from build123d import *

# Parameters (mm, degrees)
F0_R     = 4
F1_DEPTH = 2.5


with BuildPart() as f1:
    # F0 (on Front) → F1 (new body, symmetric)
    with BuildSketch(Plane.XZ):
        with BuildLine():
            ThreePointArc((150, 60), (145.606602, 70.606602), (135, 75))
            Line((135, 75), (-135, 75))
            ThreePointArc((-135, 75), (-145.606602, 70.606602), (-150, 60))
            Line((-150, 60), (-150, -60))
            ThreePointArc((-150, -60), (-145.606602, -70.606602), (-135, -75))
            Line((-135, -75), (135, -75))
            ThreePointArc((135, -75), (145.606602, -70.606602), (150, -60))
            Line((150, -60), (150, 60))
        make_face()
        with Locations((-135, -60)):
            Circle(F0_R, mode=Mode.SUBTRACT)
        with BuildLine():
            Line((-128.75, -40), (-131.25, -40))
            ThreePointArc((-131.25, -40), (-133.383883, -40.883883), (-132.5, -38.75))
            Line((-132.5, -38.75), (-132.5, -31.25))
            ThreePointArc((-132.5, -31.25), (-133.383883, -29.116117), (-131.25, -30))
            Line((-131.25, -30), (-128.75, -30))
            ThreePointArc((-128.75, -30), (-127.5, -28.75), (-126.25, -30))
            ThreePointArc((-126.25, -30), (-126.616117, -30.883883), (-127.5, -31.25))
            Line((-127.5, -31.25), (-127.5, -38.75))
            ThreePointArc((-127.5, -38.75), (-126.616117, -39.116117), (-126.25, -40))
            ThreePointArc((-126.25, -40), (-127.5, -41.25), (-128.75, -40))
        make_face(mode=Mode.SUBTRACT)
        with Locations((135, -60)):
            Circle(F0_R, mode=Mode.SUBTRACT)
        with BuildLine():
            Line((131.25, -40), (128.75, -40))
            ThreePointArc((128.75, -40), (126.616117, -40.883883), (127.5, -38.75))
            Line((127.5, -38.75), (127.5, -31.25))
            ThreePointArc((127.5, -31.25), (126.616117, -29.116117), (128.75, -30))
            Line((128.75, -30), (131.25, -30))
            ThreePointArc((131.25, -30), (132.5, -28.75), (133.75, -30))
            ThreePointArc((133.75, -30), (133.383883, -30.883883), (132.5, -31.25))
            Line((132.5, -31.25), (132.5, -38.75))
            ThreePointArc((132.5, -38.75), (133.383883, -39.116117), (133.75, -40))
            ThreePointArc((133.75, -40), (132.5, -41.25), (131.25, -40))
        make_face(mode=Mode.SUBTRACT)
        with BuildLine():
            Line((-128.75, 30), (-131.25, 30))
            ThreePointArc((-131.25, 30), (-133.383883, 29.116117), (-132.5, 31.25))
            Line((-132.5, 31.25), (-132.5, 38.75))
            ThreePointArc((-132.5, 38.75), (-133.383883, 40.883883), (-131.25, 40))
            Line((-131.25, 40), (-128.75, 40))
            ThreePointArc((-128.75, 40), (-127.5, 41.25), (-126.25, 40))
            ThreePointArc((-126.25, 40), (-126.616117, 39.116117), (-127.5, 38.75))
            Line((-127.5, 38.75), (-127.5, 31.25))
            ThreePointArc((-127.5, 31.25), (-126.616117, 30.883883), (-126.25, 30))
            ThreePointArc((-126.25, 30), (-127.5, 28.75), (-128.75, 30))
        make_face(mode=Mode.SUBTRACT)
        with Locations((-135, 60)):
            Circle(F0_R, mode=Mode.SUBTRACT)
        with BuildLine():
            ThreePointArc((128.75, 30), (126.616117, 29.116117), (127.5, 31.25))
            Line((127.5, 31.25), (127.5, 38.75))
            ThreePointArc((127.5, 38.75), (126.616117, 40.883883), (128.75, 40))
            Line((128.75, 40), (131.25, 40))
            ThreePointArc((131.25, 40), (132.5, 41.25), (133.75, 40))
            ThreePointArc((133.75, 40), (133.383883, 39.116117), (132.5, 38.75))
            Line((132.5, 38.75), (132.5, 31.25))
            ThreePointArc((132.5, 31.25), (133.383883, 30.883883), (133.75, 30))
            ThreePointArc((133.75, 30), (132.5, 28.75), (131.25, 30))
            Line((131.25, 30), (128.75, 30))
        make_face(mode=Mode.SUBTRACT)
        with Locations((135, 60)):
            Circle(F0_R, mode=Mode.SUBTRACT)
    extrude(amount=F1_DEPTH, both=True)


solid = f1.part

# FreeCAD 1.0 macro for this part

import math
import FreeCAD as App
import Part
import Sketcher

V = App.Vector

doc = App.newDocument("Part")
body = doc.addObject("PartDesign::Body", "Body")

sketch1 = body.newObject("Sketcher::SketchObject", "Sketch")
sketch1.AttachmentSupport = (doc.getObject("XZ_Plane"), [""])
sketch1.MapMode = "FlatFace"
sketch1.addGeometry([
    Part.ArcOfCircle(Part.Circle(V(135, 60, 0), V(0, 0, 1), 15), math.radians(0), math.radians(90)),
    Part.LineSegment(V(135, 75, 0), V(-135, 75, 0)),
    Part.ArcOfCircle(Part.Circle(V(-135, 60, 0), V(0, 0, 1), 15), math.radians(90), math.radians(180)),
    Part.LineSegment(V(-150, 60, 0), V(-150, -60, 0)),
    Part.ArcOfCircle(Part.Circle(V(-135, -60, 0), V(0, 0, 1), 15), math.radians(180), math.radians(270)),
    Part.LineSegment(V(-135, -75, 0), V(135, -75, 0)),
    Part.ArcOfCircle(Part.Circle(V(135, -60, 0), V(0, 0, 1), 15), math.radians(-90), math.radians(0)),
    Part.LineSegment(V(150, -60, 0), V(150, 60, 0)),
    Part.Circle(V(-135, -60, 0), V(0, 0, 1), 4),
    Part.ArcOfCircle(Part.Circle(V(-127.5, -40, 0), V(0, 0, 1), 1.2), math.radians(180), math.radians(360)),
    Part.LineSegment(V(-128.8, -40, 0), V(-131.2, -40, 0)),
    Part.ArcOfCircle(Part.Circle(V(-132.5, -40, 0), V(0, 0, 1), 1.2), math.radians(90), math.radians(360)),
    Part.LineSegment(V(-132.5, -38.8, 0), V(-132.5, -31.2, 0)),
    Part.ArcOfCircle(Part.Circle(V(-132.5, -30, 0), V(0, 0, 1), 1.2), math.radians(0), math.radians(270)),
    Part.LineSegment(V(-131.2, -30, 0), V(-128.8, -30, 0)),
    Part.ArcOfCircle(Part.Circle(V(-127.5, -30, 0), V(0, 0, 1), 1.2), math.radians(0), math.radians(180)),
    Part.ArcOfCircle(Part.Circle(V(-127.5, -30, 0), V(0, 0, 1), 1.3), math.radians(-90), math.radians(0)),
    Part.LineSegment(V(-127.5, -31.2, 0), V(-127.5, -38.8, 0)),
    Part.ArcOfCircle(Part.Circle(V(-127.5, -40, 0), V(0, 0, 1), 1.3), math.radians(0), math.radians(90)),
    Part.Circle(V(135, -60, 0), V(0, 0, 1), 4),
    Part.ArcOfCircle(Part.Circle(V(132.5, -40, 0), V(0, 0, 1), 1.2), math.radians(180), math.radians(360)),
    Part.LineSegment(V(131.2, -40, 0), V(128.8, -40, 0)),
    Part.ArcOfCircle(Part.Circle(V(127.5, -40, 0), V(0, 0, 1), 1.2), math.radians(90), math.radians(360)),
    Part.LineSegment(V(127.5, -38.8, 0), V(127.5, -31.2, 0)),
    Part.ArcOfCircle(Part.Circle(V(127.5, -30, 0), V(0, 0, 1), 1.2), math.radians(0), math.radians(270)),
    Part.LineSegment(V(128.8, -30, 0), V(131.2, -30, 0)),
    Part.ArcOfCircle(Part.Circle(V(132.5, -30, 0), V(0, 0, 1), 1.2), math.radians(0), math.radians(180)),
    Part.ArcOfCircle(Part.Circle(V(132.5, -30, 0), V(0, 0, 1), 1.3), math.radians(-90), math.radians(0)),
    Part.LineSegment(V(132.5, -31.2, 0), V(132.5, -38.8, 0)),
    Part.ArcOfCircle(Part.Circle(V(132.5, -40, 0), V(0, 0, 1), 1.3), math.radians(0), math.radians(90)),
    Part.ArcOfCircle(Part.Circle(V(-127.5, 30, 0), V(0, 0, 1), 1.2), math.radians(180), math.radians(360)),
    Part.LineSegment(V(-128.8, 30, 0), V(-131.2, 30, 0)),
    Part.ArcOfCircle(Part.Circle(V(-132.5, 30, 0), V(0, 0, 1), 1.2), math.radians(90), math.radians(360)),
    Part.LineSegment(V(-132.5, 31.2, 0), V(-132.5, 38.8, 0)),
    Part.ArcOfCircle(Part.Circle(V(-132.5, 40, 0), V(0, 0, 1), 1.2), math.radians(0), math.radians(270)),
    Part.LineSegment(V(-131.2, 40, 0), V(-128.8, 40, 0)),
    Part.ArcOfCircle(Part.Circle(V(-127.5, 40, 0), V(0, 0, 1), 1.2), math.radians(0), math.radians(180)),
    Part.ArcOfCircle(Part.Circle(V(-127.5, 40, 0), V(0, 0, 1), 1.3), math.radians(-90), math.radians(0)),
    Part.LineSegment(V(-127.5, 38.8, 0), V(-127.5, 31.2, 0)),
    Part.ArcOfCircle(Part.Circle(V(-127.5, 30, 0), V(0, 0, 1), 1.3), math.radians(0), math.radians(90)),
    Part.Circle(V(-135, 60, 0), V(0, 0, 1), 4),
    Part.LineSegment(V(131.2, 30, 0), V(128.8, 30, 0)),
    Part.ArcOfCircle(Part.Circle(V(127.5, 30, 0), V(0, 0, 1), 1.2), math.radians(90), math.radians(360)),
    Part.LineSegment(V(127.5, 31.2, 0), V(127.5, 38.8, 0)),
    Part.ArcOfCircle(Part.Circle(V(127.5, 40, 0), V(0, 0, 1), 1.2), math.radians(0), math.radians(270)),
    Part.LineSegment(V(128.8, 40, 0), V(131.2, 40, 0)),
    Part.ArcOfCircle(Part.Circle(V(132.5, 40, 0), V(0, 0, 1), 1.2), math.radians(0), math.radians(180)),
    Part.ArcOfCircle(Part.Circle(V(132.5, 40, 0), V(0, 0, 1), 1.3), math.radians(-90), math.radians(0)),
    Part.LineSegment(V(132.5, 38.8, 0), V(132.5, 31.2, 0)),
    Part.ArcOfCircle(Part.Circle(V(132.5, 30, 0), V(0, 0, 1), 1.3), math.radians(0), math.radians(90)),
    Part.ArcOfCircle(Part.Circle(V(132.5, 30, 0), V(0, 0, 1), 1.2), math.radians(180), math.radians(360)),
    Part.Circle(V(135, 60, 0), V(0, 0, 1), 4),
], False)
sketch1.addConstraint([
    Sketcher.Constraint("Tangent", 0, 2, 1, 1),
    Sketcher.Constraint("Tangent", 1, 2, 2, 1),
    Sketcher.Constraint("Tangent", 2, 2, 3, 1),
    Sketcher.Constraint("Tangent", 3, 2, 4, 1),
    Sketcher.Constraint("Tangent", 4, 2, 5, 1),
    Sketcher.Constraint("Tangent", 5, 2, 6, 1),
    Sketcher.Constraint("Tangent", 6, 2, 7, 1),
    Sketcher.Constraint("Tangent", 7, 2, 0, 1),
    Sketcher.Constraint("Coincident", 9, 1, 10, 1),
    Sketcher.Constraint("Coincident", 10, 2, 11, 2),
    Sketcher.Constraint("Coincident", 11, 1, 12, 1),
    Sketcher.Constraint("Coincident", 12, 2, 13, 2),
    Sketcher.Constraint("Coincident", 13, 1, 14, 1),
    Sketcher.Constraint("Coincident", 14, 2, 15, 2),
    Sketcher.Constraint("Tangent", 15, 1, 16, 2),
    Sketcher.Constraint("Coincident", 16, 1, 17, 1),
    Sketcher.Constraint("Coincident", 17, 2, 18, 2),
    Sketcher.Constraint("Tangent", 18, 1, 9, 2),
    Sketcher.Constraint("Coincident", 20, 1, 21, 1),
    Sketcher.Constraint("Coincident", 21, 2, 22, 2),
    Sketcher.Constraint("Coincident", 22, 1, 23, 1),
    Sketcher.Constraint("Coincident", 23, 2, 24, 2),
    Sketcher.Constraint("Coincident", 24, 1, 25, 1),
    Sketcher.Constraint("Coincident", 25, 2, 26, 2),
    Sketcher.Constraint("Tangent", 26, 1, 27, 2),
    Sketcher.Constraint("Coincident", 27, 1, 28, 1),
    Sketcher.Constraint("Coincident", 28, 2, 29, 2),
    Sketcher.Constraint("Tangent", 29, 1, 20, 2),
    Sketcher.Constraint("Coincident", 30, 1, 31, 1),
    Sketcher.Constraint("Coincident", 31, 2, 32, 2),
    Sketcher.Constraint("Coincident", 32, 1, 33, 1),
    Sketcher.Constraint("Coincident", 33, 2, 34, 2),
    Sketcher.Constraint("Coincident", 34, 1, 35, 1),
    Sketcher.Constraint("Coincident", 35, 2, 36, 2),
    Sketcher.Constraint("Tangent", 36, 1, 37, 2),
    Sketcher.Constraint("Coincident", 37, 1, 38, 1),
    Sketcher.Constraint("Coincident", 38, 2, 39, 2),
    Sketcher.Constraint("Tangent", 39, 1, 30, 2),
    Sketcher.Constraint("Coincident", 41, 2, 42, 2),
    Sketcher.Constraint("Coincident", 42, 1, 43, 1),
    Sketcher.Constraint("Coincident", 43, 2, 44, 2),
    Sketcher.Constraint("Coincident", 44, 1, 45, 1),
    Sketcher.Constraint("Coincident", 45, 2, 46, 2),
    Sketcher.Constraint("Tangent", 46, 1, 47, 2),
    Sketcher.Constraint("Coincident", 47, 1, 48, 1),
    Sketcher.Constraint("Coincident", 48, 2, 49, 2),
    Sketcher.Constraint("Tangent", 49, 1, 50, 2),
    Sketcher.Constraint("Coincident", 50, 1, 41, 1),
    Sketcher.Constraint("Horizontal", 1),
    Sketcher.Constraint("Vertical", 3),
    Sketcher.Constraint("Horizontal", 5),
    Sketcher.Constraint("Vertical", 7),
    Sketcher.Constraint("Horizontal", 10),
    Sketcher.Constraint("Vertical", 12),
    Sketcher.Constraint("Horizontal", 14),
    Sketcher.Constraint("Vertical", 17),
    Sketcher.Constraint("Horizontal", 21),
    Sketcher.Constraint("Vertical", 23),
    Sketcher.Constraint("Horizontal", 25),
    Sketcher.Constraint("Vertical", 28),
    Sketcher.Constraint("Horizontal", 31),
    Sketcher.Constraint("Vertical", 33),
    Sketcher.Constraint("Horizontal", 35),
    Sketcher.Constraint("Vertical", 38),
    Sketcher.Constraint("Horizontal", 41),
    Sketcher.Constraint("Vertical", 43),
    Sketcher.Constraint("Horizontal", 45),
    Sketcher.Constraint("Vertical", 48),
    Sketcher.Constraint("Coincident", 8, 3, 4, 3),
    Sketcher.Constraint("Coincident", 19, 3, 6, 3),
    Sketcher.Constraint("Coincident", 40, 3, 2, 3),
    Sketcher.Constraint("Coincident", 51, 3, 0, 3),
    Sketcher.Constraint("Equal", 0, 2),
    Sketcher.Constraint("Equal", 2, 4),
    Sketcher.Constraint("Equal", 4, 6),
    Sketcher.Constraint("Equal", 9, 11),
    Sketcher.Constraint("Equal", 11, 13),
    Sketcher.Constraint("Equal", 13, 15),
    Sketcher.Constraint("Equal", 15, 16),
    Sketcher.Constraint("Equal", 16, 18),
    Sketcher.Constraint("Equal", 8, 19),
    Sketcher.Constraint("Equal", 18, 20),
    Sketcher.Constraint("Equal", 20, 22),
    Sketcher.Constraint("Equal", 22, 24),
    Sketcher.Constraint("Equal", 24, 26),
    Sketcher.Constraint("Equal", 26, 27),
    Sketcher.Constraint("Equal", 27, 29),
    Sketcher.Constraint("Equal", 29, 30),
    Sketcher.Constraint("Equal", 30, 32),
    Sketcher.Constraint("Equal", 32, 34),
    Sketcher.Constraint("Equal", 34, 36),
    Sketcher.Constraint("Equal", 36, 37),
    Sketcher.Constraint("Equal", 37, 39),
    Sketcher.Constraint("Equal", 19, 40),
    Sketcher.Constraint("Equal", 39, 42),
    Sketcher.Constraint("Equal", 42, 44),
    Sketcher.Constraint("Equal", 44, 46),
    Sketcher.Constraint("Equal", 46, 47),
    Sketcher.Constraint("Equal", 47, 49),
    Sketcher.Constraint("Equal", 49, 50),
    Sketcher.Constraint("Equal", 40, 51),
    Sketcher.Constraint("Symmetric", 0, 3, 4, 3, -1, 1),
    Sketcher.Constraint("Symmetric", 24, 3, 30, 3, -1, 1),
    Sketcher.Constraint("Symmetric", 26, 3, 32, 3, -1, 1),
    Sketcher.Constraint("Symmetric", 20, 3, 34, 3, -1, 1),
    Sketcher.Constraint("Symmetric", 22, 3, 36, 3, -1, 1),
    Sketcher.Constraint("Symmetric", 15, 3, 42, 3, -1, 1),
    Sketcher.Constraint("Symmetric", 9, 3, 44, 3, -1, 1),
    Sketcher.Constraint("Symmetric", 11, 3, 46, 3, -1, 1),
    Sketcher.Constraint("Symmetric", 13, 3, 49, 3, -1, 1),
    Sketcher.Constraint("Symmetric", 11, 3, 20, 3, -2),
    Sketcher.Constraint("Symmetric", 9, 3, 22, 3, -2),
    Sketcher.Constraint("Symmetric", 15, 3, 24, 3, -2),
    Sketcher.Constraint("Symmetric", 13, 3, 26, 3, -2),
    Sketcher.Constraint("Horizontal", 9, 3, 11, 3),
    Sketcher.Constraint("Horizontal", 13, 3, 15, 3),
    Sketcher.Constraint("Horizontal", 29, 3, 9, 1),
    Sketcher.Constraint("Horizontal", 27, 3, 13, 1),
    Sketcher.Constraint("Horizontal", 14, 2, 15, 1),
    Sketcher.Constraint("Horizontal", 10, 2, 18, 1),
    Sketcher.Constraint("Horizontal", 18, 1, 20, 1),
    Sketcher.Constraint("Horizontal", 15, 1, 24, 1),
    Sketcher.Constraint("Horizontal", 25, 2, 26, 1),
    Sketcher.Constraint("Horizontal", 21, 2, 29, 1),
    Sketcher.Constraint("Horizontal", 50, 3, 30, 1),
    Sketcher.Constraint("Horizontal", 47, 3, 34, 1),
    Sketcher.Constraint("Horizontal", 35, 2, 36, 1),
    Sketcher.Constraint("Horizontal", 31, 2, 39, 1),
    Sketcher.Constraint("Horizontal", 39, 1, 41, 2),
    Sketcher.Constraint("Horizontal", 36, 1, 44, 1),
    Sketcher.Constraint("Horizontal", 45, 2, 46, 1),
    Sketcher.Constraint("Horizontal", 41, 2, 49, 1),
    Sketcher.Constraint("Vertical", 11, 3, 13, 3),
    Sketcher.Constraint("Vertical", 9, 3, 15, 3),
    Sketcher.Constraint("Vertical", 34, 3, 11, 1),
    Sketcher.Constraint("Vertical", 39, 3, 16, 1),
    Sketcher.Constraint("Vertical", 44, 3, 22, 1),
    Sketcher.Constraint("Vertical", 50, 3, 27, 1),
    Sketcher.Constraint("Vertical", 12, 2, 32, 1),
    Sketcher.Constraint("Vertical", 17, 2, 37, 1),
    Sketcher.Constraint("Vertical", 23, 2, 42, 1),
    Sketcher.Constraint("Vertical", 28, 2, 47, 1),
    Sketcher.Constraint("Diameter", 8, 8.0),
    Sketcher.Constraint("Radius", 0, 14.999999),
    Sketcher.Constraint("DistanceX", 1, 2, 1, 1, 270.0),
    Sketcher.Constraint("DistanceY", 3, 2, 3, 1, 120.0),
    Sketcher.Constraint("Radius", 9, 1.25),
    Sketcher.Constraint("DistanceX", 10, 2, 10, 1, 2.5),
    Sketcher.Constraint("DistanceY", 12, 1, 12, 2, 7.5),
    Sketcher.Constraint("DistanceY", 9, 3, -1, 1, 40.0),
    Sketcher.Constraint("DistanceX", 9, 3, -1, 1, 127.5),
])
pad1 = body.newObject("PartDesign::Pad", "Pad")
pad1.Profile = sketch1
pad1.Length = 5
pad1.Midplane = True

doc.recompute()
